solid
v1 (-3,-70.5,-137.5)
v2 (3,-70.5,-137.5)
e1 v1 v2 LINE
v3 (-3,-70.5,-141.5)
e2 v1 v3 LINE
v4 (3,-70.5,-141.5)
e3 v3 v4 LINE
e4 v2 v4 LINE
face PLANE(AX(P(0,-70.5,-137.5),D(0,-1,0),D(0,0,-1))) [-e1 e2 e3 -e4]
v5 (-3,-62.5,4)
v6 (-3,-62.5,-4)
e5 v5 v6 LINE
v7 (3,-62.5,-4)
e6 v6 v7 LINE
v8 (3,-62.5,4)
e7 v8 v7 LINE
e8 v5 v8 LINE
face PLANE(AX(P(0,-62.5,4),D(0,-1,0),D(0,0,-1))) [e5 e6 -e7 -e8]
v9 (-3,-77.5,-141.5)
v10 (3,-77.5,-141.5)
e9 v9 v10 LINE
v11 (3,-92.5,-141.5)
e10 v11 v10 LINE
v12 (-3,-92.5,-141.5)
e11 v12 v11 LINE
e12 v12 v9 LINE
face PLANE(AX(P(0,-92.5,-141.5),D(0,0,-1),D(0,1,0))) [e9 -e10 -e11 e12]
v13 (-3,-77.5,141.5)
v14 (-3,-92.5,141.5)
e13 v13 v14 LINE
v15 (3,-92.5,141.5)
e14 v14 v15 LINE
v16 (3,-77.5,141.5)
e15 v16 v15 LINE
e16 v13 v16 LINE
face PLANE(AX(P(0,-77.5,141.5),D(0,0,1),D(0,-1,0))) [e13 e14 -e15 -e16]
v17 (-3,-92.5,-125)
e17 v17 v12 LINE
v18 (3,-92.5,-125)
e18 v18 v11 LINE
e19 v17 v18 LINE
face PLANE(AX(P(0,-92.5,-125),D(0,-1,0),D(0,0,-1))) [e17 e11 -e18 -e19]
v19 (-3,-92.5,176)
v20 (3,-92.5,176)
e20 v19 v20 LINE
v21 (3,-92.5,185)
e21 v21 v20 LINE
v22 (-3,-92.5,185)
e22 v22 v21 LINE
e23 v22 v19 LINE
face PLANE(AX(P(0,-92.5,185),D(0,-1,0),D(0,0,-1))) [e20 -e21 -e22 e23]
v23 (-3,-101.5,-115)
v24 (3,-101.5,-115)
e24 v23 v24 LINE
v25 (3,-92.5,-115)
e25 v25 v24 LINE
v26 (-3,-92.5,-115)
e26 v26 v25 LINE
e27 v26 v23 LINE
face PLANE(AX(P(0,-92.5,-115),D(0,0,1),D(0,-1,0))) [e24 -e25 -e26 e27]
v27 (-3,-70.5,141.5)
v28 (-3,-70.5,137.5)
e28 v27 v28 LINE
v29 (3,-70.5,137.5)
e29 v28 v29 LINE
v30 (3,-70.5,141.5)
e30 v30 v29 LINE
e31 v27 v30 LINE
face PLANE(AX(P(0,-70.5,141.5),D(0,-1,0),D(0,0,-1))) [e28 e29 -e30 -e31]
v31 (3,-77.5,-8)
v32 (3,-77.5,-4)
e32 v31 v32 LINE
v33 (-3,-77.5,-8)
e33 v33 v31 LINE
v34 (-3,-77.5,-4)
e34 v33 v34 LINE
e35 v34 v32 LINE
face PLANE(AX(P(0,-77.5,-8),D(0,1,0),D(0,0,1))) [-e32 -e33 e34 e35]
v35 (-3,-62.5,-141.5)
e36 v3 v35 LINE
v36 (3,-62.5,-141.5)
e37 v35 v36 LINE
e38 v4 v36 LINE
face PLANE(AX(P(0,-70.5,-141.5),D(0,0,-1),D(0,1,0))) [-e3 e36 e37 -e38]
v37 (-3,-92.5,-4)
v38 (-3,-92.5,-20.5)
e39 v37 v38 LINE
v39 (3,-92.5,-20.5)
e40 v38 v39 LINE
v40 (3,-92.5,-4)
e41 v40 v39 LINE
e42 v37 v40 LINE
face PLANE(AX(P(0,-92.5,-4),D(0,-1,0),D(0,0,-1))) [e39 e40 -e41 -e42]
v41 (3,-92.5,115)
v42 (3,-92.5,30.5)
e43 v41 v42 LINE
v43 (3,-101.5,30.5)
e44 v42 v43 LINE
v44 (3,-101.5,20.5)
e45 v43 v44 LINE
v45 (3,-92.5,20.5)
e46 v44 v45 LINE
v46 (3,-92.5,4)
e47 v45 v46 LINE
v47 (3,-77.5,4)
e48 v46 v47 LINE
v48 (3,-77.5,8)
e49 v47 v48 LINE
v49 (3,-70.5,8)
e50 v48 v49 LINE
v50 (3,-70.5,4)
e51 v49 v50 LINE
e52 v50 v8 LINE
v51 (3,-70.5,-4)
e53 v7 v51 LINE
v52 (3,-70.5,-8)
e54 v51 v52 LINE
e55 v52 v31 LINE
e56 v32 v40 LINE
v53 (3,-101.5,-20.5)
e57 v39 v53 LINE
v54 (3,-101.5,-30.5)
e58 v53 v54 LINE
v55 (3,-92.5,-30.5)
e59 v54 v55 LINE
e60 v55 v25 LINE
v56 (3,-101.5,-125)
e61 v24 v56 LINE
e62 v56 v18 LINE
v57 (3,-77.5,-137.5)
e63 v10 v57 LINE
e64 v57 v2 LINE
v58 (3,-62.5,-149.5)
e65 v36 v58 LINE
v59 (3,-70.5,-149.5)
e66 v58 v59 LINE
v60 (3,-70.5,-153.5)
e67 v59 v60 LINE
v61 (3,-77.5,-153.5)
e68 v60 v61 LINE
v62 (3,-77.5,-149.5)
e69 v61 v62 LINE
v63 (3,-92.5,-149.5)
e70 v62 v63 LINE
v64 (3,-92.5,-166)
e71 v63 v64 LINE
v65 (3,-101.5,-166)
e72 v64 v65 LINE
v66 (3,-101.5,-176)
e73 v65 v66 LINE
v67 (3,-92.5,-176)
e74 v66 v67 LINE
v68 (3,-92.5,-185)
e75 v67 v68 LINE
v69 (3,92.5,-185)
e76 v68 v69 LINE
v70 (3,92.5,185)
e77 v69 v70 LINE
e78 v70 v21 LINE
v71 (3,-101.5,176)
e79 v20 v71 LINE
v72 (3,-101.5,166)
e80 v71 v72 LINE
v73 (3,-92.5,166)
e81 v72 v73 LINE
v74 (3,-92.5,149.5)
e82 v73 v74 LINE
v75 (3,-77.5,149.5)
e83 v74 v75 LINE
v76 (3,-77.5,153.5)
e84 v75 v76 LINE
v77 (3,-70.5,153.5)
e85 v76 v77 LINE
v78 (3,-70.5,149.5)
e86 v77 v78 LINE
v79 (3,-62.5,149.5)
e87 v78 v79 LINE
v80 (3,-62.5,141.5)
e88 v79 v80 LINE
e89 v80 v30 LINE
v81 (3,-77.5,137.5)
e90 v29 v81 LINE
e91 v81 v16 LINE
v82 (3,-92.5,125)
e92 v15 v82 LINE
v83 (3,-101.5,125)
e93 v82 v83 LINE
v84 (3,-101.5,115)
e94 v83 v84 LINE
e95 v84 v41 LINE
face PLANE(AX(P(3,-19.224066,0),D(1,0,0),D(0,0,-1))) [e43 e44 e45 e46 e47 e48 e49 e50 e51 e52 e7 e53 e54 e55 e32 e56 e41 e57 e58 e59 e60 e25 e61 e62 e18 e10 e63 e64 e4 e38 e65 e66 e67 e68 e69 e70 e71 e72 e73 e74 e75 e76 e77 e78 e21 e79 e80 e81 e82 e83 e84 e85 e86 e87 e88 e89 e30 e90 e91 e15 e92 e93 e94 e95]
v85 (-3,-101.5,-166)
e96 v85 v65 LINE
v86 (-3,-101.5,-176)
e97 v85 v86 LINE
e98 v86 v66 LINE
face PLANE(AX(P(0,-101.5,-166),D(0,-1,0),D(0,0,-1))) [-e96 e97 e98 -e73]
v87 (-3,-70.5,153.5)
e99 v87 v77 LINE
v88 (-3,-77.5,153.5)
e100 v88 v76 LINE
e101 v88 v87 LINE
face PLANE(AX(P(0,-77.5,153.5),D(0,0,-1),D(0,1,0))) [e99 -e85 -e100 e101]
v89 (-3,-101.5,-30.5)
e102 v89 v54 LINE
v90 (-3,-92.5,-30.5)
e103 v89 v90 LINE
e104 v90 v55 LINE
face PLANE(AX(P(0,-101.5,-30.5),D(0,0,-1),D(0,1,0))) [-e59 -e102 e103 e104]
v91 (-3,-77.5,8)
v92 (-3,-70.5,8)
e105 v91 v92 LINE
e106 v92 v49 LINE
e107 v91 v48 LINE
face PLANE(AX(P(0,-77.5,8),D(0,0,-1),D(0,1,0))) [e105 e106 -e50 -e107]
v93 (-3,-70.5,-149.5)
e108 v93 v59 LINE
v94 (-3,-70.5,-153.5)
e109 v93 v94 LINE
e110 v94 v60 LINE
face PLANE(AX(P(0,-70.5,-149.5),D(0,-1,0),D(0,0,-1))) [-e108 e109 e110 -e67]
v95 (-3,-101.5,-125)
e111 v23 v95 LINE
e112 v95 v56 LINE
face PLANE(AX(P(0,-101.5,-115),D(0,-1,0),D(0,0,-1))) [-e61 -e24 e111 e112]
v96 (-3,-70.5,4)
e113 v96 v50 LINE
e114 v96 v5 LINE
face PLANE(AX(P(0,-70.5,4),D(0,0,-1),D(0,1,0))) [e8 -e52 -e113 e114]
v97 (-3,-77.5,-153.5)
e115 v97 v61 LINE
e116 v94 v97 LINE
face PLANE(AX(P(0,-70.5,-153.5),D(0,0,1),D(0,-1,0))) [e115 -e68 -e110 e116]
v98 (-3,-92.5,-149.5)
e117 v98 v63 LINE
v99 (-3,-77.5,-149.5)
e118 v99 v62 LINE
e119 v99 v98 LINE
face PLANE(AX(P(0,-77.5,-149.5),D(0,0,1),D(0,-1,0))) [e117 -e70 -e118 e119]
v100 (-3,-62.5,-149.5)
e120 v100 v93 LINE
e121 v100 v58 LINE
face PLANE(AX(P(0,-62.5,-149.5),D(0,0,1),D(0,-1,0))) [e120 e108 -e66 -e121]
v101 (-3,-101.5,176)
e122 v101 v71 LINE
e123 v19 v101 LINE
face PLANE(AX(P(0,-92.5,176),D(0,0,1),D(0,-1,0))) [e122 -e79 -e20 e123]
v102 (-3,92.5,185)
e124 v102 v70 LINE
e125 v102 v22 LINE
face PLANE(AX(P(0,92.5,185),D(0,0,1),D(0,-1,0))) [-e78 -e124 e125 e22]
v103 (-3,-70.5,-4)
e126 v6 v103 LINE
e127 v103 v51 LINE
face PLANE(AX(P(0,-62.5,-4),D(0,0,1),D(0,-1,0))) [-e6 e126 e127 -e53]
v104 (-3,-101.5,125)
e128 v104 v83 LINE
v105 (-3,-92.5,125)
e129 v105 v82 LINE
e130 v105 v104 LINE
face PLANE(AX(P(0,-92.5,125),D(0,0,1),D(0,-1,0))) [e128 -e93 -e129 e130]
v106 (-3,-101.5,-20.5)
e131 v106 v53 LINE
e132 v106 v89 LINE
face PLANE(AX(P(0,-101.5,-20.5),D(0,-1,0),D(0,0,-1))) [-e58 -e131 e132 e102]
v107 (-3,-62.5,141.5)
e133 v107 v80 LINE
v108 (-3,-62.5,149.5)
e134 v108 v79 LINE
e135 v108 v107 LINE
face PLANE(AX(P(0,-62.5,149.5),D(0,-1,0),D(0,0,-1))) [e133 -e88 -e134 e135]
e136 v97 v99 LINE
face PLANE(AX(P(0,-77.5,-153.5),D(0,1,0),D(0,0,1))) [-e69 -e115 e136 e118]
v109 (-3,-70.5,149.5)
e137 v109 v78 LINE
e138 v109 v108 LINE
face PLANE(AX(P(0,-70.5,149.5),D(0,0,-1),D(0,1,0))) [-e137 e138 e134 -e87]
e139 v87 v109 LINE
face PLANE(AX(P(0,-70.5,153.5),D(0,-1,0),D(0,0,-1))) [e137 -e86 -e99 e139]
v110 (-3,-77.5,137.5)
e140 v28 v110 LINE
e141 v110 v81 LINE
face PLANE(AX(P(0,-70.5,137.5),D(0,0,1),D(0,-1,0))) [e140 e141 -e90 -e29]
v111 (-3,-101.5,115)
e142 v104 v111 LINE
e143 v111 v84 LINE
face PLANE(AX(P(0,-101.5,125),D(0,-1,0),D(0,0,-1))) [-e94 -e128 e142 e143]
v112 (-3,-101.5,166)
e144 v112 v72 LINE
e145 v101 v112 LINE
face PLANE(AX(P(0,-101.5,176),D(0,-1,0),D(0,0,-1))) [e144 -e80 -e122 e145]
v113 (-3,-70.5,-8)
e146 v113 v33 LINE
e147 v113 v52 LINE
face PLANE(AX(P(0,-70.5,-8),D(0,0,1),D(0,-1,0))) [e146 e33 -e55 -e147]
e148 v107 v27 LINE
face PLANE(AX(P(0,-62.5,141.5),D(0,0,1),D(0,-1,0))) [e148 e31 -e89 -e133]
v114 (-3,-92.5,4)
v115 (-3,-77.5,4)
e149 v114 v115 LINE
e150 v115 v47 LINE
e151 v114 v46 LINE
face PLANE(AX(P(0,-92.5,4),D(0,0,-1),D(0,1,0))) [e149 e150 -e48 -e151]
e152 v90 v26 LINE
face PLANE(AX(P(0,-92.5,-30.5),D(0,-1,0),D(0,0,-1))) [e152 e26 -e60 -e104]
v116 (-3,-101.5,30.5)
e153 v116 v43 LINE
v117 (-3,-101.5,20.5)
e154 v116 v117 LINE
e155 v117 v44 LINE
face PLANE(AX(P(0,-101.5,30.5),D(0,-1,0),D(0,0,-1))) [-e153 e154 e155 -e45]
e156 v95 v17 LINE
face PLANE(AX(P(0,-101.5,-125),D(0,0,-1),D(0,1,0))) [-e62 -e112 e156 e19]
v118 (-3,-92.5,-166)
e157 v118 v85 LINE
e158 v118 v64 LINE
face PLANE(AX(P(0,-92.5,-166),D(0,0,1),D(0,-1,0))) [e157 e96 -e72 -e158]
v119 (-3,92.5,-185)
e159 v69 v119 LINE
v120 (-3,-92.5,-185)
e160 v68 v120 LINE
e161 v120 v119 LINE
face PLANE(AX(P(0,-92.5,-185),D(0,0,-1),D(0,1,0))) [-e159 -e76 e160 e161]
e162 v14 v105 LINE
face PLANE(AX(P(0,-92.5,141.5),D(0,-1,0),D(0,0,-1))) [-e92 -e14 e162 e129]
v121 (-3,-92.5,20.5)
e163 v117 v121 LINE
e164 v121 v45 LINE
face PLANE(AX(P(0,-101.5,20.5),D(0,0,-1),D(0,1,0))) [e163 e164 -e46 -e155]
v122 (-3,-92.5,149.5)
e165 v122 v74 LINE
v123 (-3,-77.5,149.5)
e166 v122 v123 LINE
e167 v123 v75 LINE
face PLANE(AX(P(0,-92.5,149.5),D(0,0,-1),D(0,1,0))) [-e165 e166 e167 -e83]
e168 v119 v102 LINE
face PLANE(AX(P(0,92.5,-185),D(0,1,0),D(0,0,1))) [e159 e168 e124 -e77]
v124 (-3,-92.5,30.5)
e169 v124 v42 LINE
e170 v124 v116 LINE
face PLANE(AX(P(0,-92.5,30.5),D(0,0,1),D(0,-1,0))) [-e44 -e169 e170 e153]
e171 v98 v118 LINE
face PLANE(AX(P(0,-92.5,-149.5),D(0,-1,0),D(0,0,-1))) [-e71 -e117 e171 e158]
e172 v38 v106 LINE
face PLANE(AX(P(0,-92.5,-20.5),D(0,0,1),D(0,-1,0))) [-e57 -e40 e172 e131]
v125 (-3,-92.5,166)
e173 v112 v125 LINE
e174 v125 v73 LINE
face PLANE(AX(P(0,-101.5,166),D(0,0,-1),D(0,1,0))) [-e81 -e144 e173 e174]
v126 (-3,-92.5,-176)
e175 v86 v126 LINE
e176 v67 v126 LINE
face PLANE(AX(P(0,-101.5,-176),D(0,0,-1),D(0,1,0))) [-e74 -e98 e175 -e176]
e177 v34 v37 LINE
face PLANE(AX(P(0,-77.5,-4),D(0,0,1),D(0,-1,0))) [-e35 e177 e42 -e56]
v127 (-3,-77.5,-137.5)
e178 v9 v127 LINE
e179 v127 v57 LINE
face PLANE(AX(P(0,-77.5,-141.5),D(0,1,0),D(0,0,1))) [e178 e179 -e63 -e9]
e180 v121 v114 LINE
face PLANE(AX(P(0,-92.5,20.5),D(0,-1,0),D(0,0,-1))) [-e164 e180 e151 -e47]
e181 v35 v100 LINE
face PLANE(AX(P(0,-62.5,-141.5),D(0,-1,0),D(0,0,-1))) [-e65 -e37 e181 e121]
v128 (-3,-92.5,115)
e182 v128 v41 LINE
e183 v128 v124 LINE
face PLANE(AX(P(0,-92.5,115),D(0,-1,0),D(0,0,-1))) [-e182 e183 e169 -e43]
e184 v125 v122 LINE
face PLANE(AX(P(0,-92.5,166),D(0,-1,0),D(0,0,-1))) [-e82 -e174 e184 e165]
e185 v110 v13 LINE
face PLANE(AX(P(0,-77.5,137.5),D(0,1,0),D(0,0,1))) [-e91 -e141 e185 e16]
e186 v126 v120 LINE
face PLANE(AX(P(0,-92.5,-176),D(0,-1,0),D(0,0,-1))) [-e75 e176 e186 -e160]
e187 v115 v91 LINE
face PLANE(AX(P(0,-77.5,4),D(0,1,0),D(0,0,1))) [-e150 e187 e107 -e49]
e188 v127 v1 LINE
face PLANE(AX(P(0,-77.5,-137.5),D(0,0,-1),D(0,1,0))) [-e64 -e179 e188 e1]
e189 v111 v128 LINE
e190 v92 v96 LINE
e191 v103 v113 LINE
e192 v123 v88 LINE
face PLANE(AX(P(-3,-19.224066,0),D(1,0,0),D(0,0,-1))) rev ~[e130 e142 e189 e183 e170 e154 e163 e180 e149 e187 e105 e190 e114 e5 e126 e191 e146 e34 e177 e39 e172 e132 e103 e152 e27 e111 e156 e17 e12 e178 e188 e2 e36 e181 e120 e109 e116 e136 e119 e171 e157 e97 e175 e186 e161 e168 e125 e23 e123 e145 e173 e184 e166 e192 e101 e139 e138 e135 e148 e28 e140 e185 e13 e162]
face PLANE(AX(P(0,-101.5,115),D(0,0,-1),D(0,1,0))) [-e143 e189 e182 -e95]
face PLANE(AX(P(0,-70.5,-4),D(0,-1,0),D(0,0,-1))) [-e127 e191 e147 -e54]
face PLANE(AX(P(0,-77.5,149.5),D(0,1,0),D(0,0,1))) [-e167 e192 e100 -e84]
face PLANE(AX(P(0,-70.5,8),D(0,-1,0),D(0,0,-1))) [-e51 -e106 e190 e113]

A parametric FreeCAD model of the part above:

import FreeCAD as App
import Part
import Sketcher
from FreeCAD import Vector
Q = App.Units.Quantity


def add_polygon(sketch, points):
    """Adds a closed chain of lines whose ends are joined by coincident constraints."""
    first, n = sketch.GeometryCount, len(points)
    for a, b in zip(points, points[1:] + points[:1]):
        sketch.addGeometry(Part.LineSegment(App.Vector(*a, 0), App.Vector(*b, 0)), False)
    for i in range(n):
        sketch.addConstraint(Sketcher.Constraint("Coincident", first + i, 2, first + (i + 1) % n, 1))

doc = App.newDocument("Part")
body = doc.addObject("PartDesign::Body", "Body")

sketch1 = body.newObject("Sketcher::SketchObject", "Sketch")
sketch1.AttachmentSupport = (doc.getObject("YZ_Plane"), [""])
sketch1.MapMode = "FlatFace"
add_polygon(sketch1, [(92.5, -185), (92.5, 185), (-92.5, 185), (-92.5, 176), (-101.5, 176), (-101.5, 166), (-92.5, 166), (-92.5, 149.5), (-77.5, 149.5), (-77.5, 153.5), (-70.5, 153.5), (-70.5, 149.5), (-62.5, 149.5), (-62.5, 141.5), (-70.5, 141.5), (-70.5, 137.5), (-77.5, 137.5), (-77.5, 141.5), (-92.5, 141.5), (-92.5, 125), (-101.5, 125), (-101.5, 115), (-92.5, 115), (-92.5, 30.5), (-101.5, 30.5), (-101.5, 20.5), (-92.5, 20.5), (-92.5, 4), (-77.5, 4), (-77.5, 8), (-70.5, 8), (-70.5, 4), (-62.5, 4), (-62.5, -4), (-70.5, -4), (-70.5, -8), (-77.5, -8), (-77.5, -4), (-92.5, -4), (-92.5, -20.5), (-101.5, -20.5), (-101.5, -30.5), (-92.5, -30.5), (-92.5, -115), (-101.5, -115), (-101.5, -125), (-92.5, -125), (-92.5, -141.5), (-77.5, -141.5), (-77.5, -137.5), (-70.5, -137.5), (-70.5, -141.5), (-62.5, -141.5), (-62.5, -149.5), (-70.5, -149.5), (-70.5, -153.5), (-77.5, -153.5), (-77.5, -149.5), (-92.5, -149.5), (-92.5, -166), (-101.5, -166), (-101.5, -176), (-92.5, -176), (-92.5, -185)])
sketch1.addConstraint([
    Sketcher.Constraint("Vertical", 0),
    Sketcher.Constraint("Horizontal", 1),
    Sketcher.Constraint("Vertical", 2),
    Sketcher.Constraint("Horizontal", 3),
    Sketcher.Constraint("Vertical", 4),
    Sketcher.Constraint("Horizontal", 5),
    Sketcher.Constraint("Vertical", 6),
    Sketcher.Constraint("Horizontal", 7),
    Sketcher.Constraint("Vertical", 8),
    Sketcher.Constraint("Horizontal", 9),
    Sketcher.Constraint("Vertical", 10),
    Sketcher.Constraint("Horizontal", 11),
    Sketcher.Constraint("Vertical", 12),
    Sketcher.Constraint("Horizontal", 13),
    Sketcher.Constraint("Vertical", 14),
    Sketcher.Constraint("Horizontal", 15),
    Sketcher.Constraint("Vertical", 16),
    Sketcher.Constraint("Horizontal", 17),
    Sketcher.Constraint("Vertical", 18),
    Sketcher.Constraint("Horizontal", 19),
    Sketcher.Constraint("Vertical", 20),
    Sketcher.Constraint("Horizontal", 21),
    Sketcher.Constraint("Vertical", 22),
    Sketcher.Constraint("Horizontal", 23),
    Sketcher.Constraint("Vertical", 24),
    Sketcher.Constraint("Horizontal", 25),
    Sketcher.Constraint("Vertical", 26),
    Sketcher.Constraint("Horizontal", 27),
    Sketcher.Constraint("Vertical", 28),
    Sketcher.Constraint("Horizontal", 29),
    Sketcher.Constraint("Vertical", 30),
    Sketcher.Constraint("Horizontal", 31),
    Sketcher.Constraint("Vertical", 32),
    Sketcher.Constraint("Horizontal", 33),
    Sketcher.Constraint("Vertical", 34),
    Sketcher.Constraint("Horizontal", 35),
    Sketcher.Constraint("Vertical", 36),
    Sketcher.Constraint("Horizontal", 37),
    Sketcher.Constraint("Vertical", 38),
    Sketcher.Constraint("Horizontal", 39),
    Sketcher.Constraint("Vertical", 40),
    Sketcher.Constraint("Horizontal", 41),
    Sketcher.Constraint("Vertical", 42),
    Sketcher.Constraint("Horizontal", 43),
    Sketcher.Constraint("Vertical", 44),
    Sketcher.Constraint("Horizontal", 45),
    Sketcher.Constraint("Vertical", 46),
    Sketcher.Constraint("Horizontal", 47),
    Sketcher.Constraint("Vertical", 48),
    Sketcher.Constraint("Horizontal", 49),
    Sketcher.Constraint("Vertical", 50),
    Sketcher.Constraint("Horizontal", 51),
    Sketcher.Constraint("Vertical", 52),
    Sketcher.Constraint("Horizontal", 53),
    Sketcher.Constraint("Vertical", 54),
    Sketcher.Constraint("Horizontal", 55),
    Sketcher.Constraint("Vertical", 56),
    Sketcher.Constraint("Horizontal", 57),
    Sketcher.Constraint("Vertical", 58),
    Sketcher.Constraint("Horizontal", 59),
    Sketcher.Constraint("Vertical", 60),
    Sketcher.Constraint("Horizontal", 61),
    Sketcher.Constraint("Vertical", 62),
    Sketcher.Constraint("Horizontal", 63),
    Sketcher.Constraint("Symmetric", 0, 2, 62, 2, -1, 1),
    Sketcher.Constraint("Symmetric", 30, 2, 33, 2, -1),
    Sketcher.Constraint("Symmetric", 28, 2, 35, 2, -1),
    Sketcher.Constraint("Symmetric", 26, 2, 37, 2, -1),
    Sketcher.Constraint("Symmetric", 24, 2, 39, 2, -1),
    Sketcher.Constraint("Symmetric", 22, 2, 41, 2, -1),
    Sketcher.Constraint("Symmetric", 20, 2, 43, 2, -1),
    Sketcher.Constraint("Symmetric", 18, 2, 45, 2, -1),
    Sketcher.Constraint("Symmetric", 16, 2, 47, 2, -1),
    Sketcher.Constraint("Symmetric", 14, 2, 49, 2, -1),
    Sketcher.Constraint("Symmetric", 12, 2, 51, 2, -1),
    Sketcher.Constraint("Symmetric", 10, 2, 53, 2, -1),
    Sketcher.Constraint("Symmetric", 8, 2, 55, 2, -1),
    Sketcher.Constraint("Symmetric", 6, 2, 57, 2, -1),
    Sketcher.Constraint("Symmetric", 4, 2, 59, 2, -1),
    Sketcher.Constraint("Symmetric", 2, 2, 61, 2, -1),
    Sketcher.Constraint("Horizontal", 7, 2, 10, 2),
    Sketcher.Constraint("Horizontal", 13, 2, 16, 2),
    Sketcher.Constraint("Horizontal", 27, 2, 30, 2),
    Sketcher.Constraint("Vertical", 2, 2, 5, 2),
    Sketcher.Constraint("Vertical", 10, 2, 13, 2),
    Sketcher.Constraint("Vertical", 8, 2, 15, 2),
    Sketcher.Constraint("Vertical", 6, 2, 17, 2),
    Sketcher.Constraint("Vertical", 4, 2, 19, 2),
    Sketcher.Constraint("Vertical", 18, 2, 21, 2),
    Sketcher.Constraint("Vertical", 20, 2, 23, 2),
    Sketcher.Constraint("Vertical", 22, 2, 25, 2),
    Sketcher.Constraint("Vertical", 16, 2, 27, 2),
    Sketcher.Constraint("Vertical", 14, 2, 29, 2),
    Sketcher.Constraint("Vertical", 12, 2, 31, 2),
    Sketcher.Constraint("Equal", 61, 2),
    Sketcher.Constraint("Equal", 53, 12),
    Sketcher.Constraint("Equal", 10, 14),
    Sketcher.Constraint("Equal", 6, 18),
    Sketcher.Constraint("Equal", 4, 20),
    Sketcher.Constraint("Equal", 20, 24),
    Sketcher.Constraint("Equal", 18, 26),
    Sketcher.Constraint("Equal", 16, 28),
    Sketcher.Constraint("Equal", 12, 32),
    Sketcher.Constraint("DistanceX", 1, 2, 1, 1, Q("185 mm")),
    Sketcher.Constraint("DistanceX", 3, 2, 3, 1, Q("9 mm")),
    Sketcher.Constraint("DistanceX", 7, 1, 7, 2, Q("15 mm")),
    Sketcher.Constraint("DistanceX", 9, 1, 9, 2, Q("7 mm")),
    Sketcher.Constraint("DistanceX", 11, 1, 11, 2, Q("8 mm")),
    Sketcher.Constraint("DistanceY", 0, 1, 0, 2, Q("370 mm")),
    Sketcher.Constraint("DistanceY", 4, 2, 4, 1, Q("10 mm")),
    Sketcher.Constraint("DistanceY", 8, 1, 8, 2, Q("4 mm")),
    Sketcher.Constraint("DistanceY", 6, 2, 6, 1, Q("16.5 mm")),
])
pad1 = body.newObject("PartDesign::Pad", "Pad")
pad1.Profile = sketch1
pad1.Length = 6
pad1.Midplane = True

doc.recompute()
